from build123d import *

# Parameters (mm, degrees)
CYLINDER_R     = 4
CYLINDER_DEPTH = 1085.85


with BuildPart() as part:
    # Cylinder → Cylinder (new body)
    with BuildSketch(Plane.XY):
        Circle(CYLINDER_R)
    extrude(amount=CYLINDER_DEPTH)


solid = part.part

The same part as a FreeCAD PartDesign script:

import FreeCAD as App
import Part
import Sketcher

V = App.Vector
Q = App.Units.Quantity

doc = App.newDocument("Part")
body = doc.addObject("PartDesign::Body", "Body")

# Sketch on XY plane
sketch1 = doc.addObject("Sketcher::SketchObject", "Sketch")
body.addObject(sketch1)
sketch1.AttachmentSupport = (doc.XY_Plane, [""])
sketch1.MapMode = "FlatFace"
sketch1.addGeometry(Part.Circle(V(0, 0, 0), V(0, 0, 1), 4), False)
sketch1.addConstraint([
    Sketcher.Constraint("Coincident", 0, 3, -1, 1),
    Sketcher.Constraint("Diameter", 0, Q("8 mm")),
])
pad1 = doc.addObject("PartDesign::Pad", "Pad")
body.addObject(pad1)
pad1.Profile = sketch1
pad1.Length = 1085.85

doc.recompute()
